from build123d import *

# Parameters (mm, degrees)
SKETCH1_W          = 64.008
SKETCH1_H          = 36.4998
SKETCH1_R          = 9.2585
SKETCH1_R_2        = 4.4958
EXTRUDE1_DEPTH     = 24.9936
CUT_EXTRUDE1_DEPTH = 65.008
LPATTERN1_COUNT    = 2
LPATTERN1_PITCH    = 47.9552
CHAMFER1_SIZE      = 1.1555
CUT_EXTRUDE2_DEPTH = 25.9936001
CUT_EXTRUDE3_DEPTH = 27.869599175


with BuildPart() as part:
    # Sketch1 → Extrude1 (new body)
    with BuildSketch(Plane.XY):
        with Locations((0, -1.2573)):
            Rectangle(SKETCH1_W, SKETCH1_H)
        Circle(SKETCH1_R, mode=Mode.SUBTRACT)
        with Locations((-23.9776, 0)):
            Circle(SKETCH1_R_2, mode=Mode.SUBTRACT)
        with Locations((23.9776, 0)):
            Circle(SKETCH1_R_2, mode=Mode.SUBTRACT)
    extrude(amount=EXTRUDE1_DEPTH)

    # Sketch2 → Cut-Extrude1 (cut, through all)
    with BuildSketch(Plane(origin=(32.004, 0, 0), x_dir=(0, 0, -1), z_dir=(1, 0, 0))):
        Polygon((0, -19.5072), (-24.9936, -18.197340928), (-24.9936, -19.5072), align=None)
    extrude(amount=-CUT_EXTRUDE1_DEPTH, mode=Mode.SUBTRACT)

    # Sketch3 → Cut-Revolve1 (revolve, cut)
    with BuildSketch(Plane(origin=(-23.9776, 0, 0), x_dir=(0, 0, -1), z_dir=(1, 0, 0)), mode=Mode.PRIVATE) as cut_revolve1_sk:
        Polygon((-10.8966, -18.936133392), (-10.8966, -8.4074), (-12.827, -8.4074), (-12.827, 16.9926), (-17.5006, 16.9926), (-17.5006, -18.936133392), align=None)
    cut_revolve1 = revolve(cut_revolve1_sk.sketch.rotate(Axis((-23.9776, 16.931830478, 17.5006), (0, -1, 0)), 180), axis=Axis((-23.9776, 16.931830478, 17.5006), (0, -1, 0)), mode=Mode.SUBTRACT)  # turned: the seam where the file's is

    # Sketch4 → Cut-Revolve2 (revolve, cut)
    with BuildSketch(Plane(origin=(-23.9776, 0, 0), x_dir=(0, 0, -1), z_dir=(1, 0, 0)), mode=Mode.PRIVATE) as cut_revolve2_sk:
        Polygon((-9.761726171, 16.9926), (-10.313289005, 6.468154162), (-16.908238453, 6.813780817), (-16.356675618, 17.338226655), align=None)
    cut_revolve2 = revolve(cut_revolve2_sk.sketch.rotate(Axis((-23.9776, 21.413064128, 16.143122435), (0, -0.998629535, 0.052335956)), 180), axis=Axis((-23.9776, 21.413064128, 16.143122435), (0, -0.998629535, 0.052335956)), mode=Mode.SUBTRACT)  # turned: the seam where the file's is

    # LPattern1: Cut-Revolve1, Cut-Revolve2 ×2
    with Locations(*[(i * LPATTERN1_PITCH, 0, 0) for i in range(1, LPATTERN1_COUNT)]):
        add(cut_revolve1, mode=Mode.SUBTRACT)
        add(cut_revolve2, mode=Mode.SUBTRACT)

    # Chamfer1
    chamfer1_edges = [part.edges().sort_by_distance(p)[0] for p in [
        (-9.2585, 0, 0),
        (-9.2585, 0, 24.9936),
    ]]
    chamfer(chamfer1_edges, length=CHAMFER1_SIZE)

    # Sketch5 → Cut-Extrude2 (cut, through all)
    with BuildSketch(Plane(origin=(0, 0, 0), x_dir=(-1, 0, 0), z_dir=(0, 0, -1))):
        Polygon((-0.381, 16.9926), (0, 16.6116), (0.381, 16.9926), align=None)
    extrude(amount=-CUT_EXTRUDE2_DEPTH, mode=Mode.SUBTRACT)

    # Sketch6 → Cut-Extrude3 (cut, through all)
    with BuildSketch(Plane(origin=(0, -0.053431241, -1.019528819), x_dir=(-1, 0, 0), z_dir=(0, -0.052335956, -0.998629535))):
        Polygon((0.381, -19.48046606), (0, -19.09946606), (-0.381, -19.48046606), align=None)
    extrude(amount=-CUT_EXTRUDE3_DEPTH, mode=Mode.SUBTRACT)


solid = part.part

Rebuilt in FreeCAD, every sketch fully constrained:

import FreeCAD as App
import Part
import Sketcher

V = App.Vector
Q = App.Units.Quantity


def edges_at(feature, points):
    """Names of the edges that pass closest to the given points."""
    edges = feature.Shape.Edges
    near = lambda p: min(range(len(edges)), key=lambda i: edges[i].distToShape(Part.Vertex(*p))[0])
    return sorted({f"Edge{near(p) + 1}" for p in points})


def add_polygon(sketch, points):
    """Adds a closed chain of lines whose ends are joined by coincident constraints."""
    first, n = sketch.GeometryCount, len(points)
    for a, b in zip(points, points[1:] + points[:1]):
        sketch.addGeometry(Part.LineSegment(App.Vector(*a, 0), App.Vector(*b, 0)), False)
    for i in range(n):
        sketch.addConstraint(Sketcher.Constraint("Coincident", first + i, 2, first + (i + 1) % n, 1))

doc = App.newDocument("Part")
body = doc.addObject("PartDesign::Body", "Body")

sketch1 = body.newObject("Sketcher::SketchObject", "Sketch")
sketch1.AttachmentSupport = (doc.getObject("XY_Plane"), [""])
sketch1.MapMode = "FlatFace"
add_polygon(sketch1, [(-32, 17), (-32, -19.5), (32, -19.5), (32, 17)])
sketch1.addGeometry(Part.Circle(V(-24, 0, 0), V(0, 0, 1), 4.5), False)
sketch1.addGeometry(Part.Circle(V(24, 0, 0), V(0, 0, 1), 4.5), False)
sketch1.addGeometry(Part.Circle(V(0, 0, 0), V(0, 0, 1), 9.3), False)
sketch1.addConstraint([
    Sketcher.Constraint("Vertical", 0),
    Sketcher.Constraint("Horizontal", 1),
    Sketcher.Constraint("Vertical", 2),
    Sketcher.Constraint("Horizontal", 3),
    Sketcher.Constraint("Coincident", 6, 3, -1, 1),
    Sketcher.Constraint("Equal", 4, 5),
    Sketcher.Constraint("Symmetric", 4, 3, 5, 3, -1, 1),
    Sketcher.Constraint("PointOnObject", 4, 3, -1),
    Sketcher.Constraint("Diameter", 4, Q("0.354 in")),
    Sketcher.Constraint("DistanceX", 1, 1, 1, 2, Q("2.52 in")),
    Sketcher.Constraint("Diameter", 6, 18.517),
    Sketcher.Constraint("DistanceY", 0, 2, 0, 1, Q("1.437 in")),
    Sketcher.Constraint("DistanceX", 0, 2, -1, 1, Q("1.26 in")),
    Sketcher.Constraint("DistanceX", 4, 3, -1, 1, Q("0.944 in")),
    Sketcher.Constraint("DistanceY", 0, 2, -1, 1, Q("0.768 in")),
])
pad1 = body.newObject("PartDesign::Pad", "Pad")
pad1.Profile = sketch1
pad1.Length = Q("0.984 in")

sketch2 = body.newObject("Sketcher::SketchObject", "Sketch001")
sketch2.AttachmentSupport = (doc.getObject("YZ_Plane"), [""])
sketch2.MapMode = "FlatFace"
sketch2.AttachmentOffset = App.Placement(V(0, 0, 1.26 * 25.4), App.Rotation())
add_polygon(sketch2, [(-19.5, 0), (-18.2, 25), (-19.5, 25)])
sketch2.addConstraint([
    Sketcher.Constraint("Horizontal", 1),
    Sketcher.Constraint("Vertical", 2),
    Sketcher.Constraint("PointOnObject", 2, 2, -1),
    Sketcher.Constraint("Angle", 0, Q("87 deg")),
    Sketcher.Constraint("DistanceY", 2, 2, 2, 1, Q("0.984 in")),
    Sketcher.Constraint("DistanceX", 1, 2, -1, 1, Q("0.768 in")),
])
pocket1 = body.newObject("PartDesign::Pocket", "Pocket")
pocket1.Profile = sketch2
pocket1.Type = "ThroughAll"

sketch3 = body.newObject("Sketcher::SketchObject", "Sketch002")
sketch3.AttachmentSupport = (doc.getObject("YZ_Plane"), [""])
sketch3.MapMode = "FlatFace"
sketch3.AttachmentOffset = App.Placement(V(0, 0, -0.944 * 25.4), App.Rotation())
add_polygon(sketch3, [(-18.9, 10.9), (-8.4, 10.9), (-8.4, 12.8), (17, 12.8), (17, 17.5), (-18.9, 17.5)])
sketch3.addGeometry(Part.LineSegment(V(17, 17.5, 0), V(-18.9, 17.5, 0)), True)
sketch3.addConstraint([
    Sketcher.Constraint("Horizontal", 0),
    Sketcher.Constraint("Vertical", 1),
    Sketcher.Constraint("Horizontal", 2),
    Sketcher.Constraint("Vertical", 3),
    Sketcher.Constraint("Horizontal", 4),
    Sketcher.Constraint("Vertical", 5),
    Sketcher.Constraint("Horizontal", 6),
    Sketcher.Constraint("Coincident", 6, 1, 3, 2),
    Sketcher.Constraint("Vertical", 5, 2, 6, 2),
    Sketcher.Constraint("DistanceX", 2, 1, 2, 2, Q("1 in")),
    Sketcher.Constraint("DistanceY", 5, 2, 5, 1, Q("0.26 in")),
    Sketcher.Constraint("DistanceY", 1, 1, 1, 2, Q("0.076 in")),
    Sketcher.Constraint("DistanceX", 0, 2, -1, 1, Q("0.331 in")),
    Sketcher.Constraint("DistanceY", -1, 1, 0, 2, Q("0.429 in")),
    Sketcher.Constraint("DistanceX", 0, 1, 0, 2, 10.528733),
])
groove = body.newObject("PartDesign::Groove", "Groove")
groove.Profile = sketch3
groove.ReferenceAxis = (sketch3, ["Axis0"])
groove.Angle = 360

sketch4 = body.newObject("Sketcher::SketchObject", "Sketch003")
sketch4.AttachmentSupport = (doc.getObject("YZ_Plane"), [""])
sketch4.MapMode = "FlatFace"
sketch4.AttachmentOffset = App.Placement(V(0, 0, -0.944 * 25.4), App.Rotation())
add_polygon(sketch4, [(6, 10), (17, 10), (17, 16), (7, 17)])
sketch4.addGeometry(Part.LineSegment(V(17, 16, 0), V(7, 17, 0)), True)
sketch4.addConstraint([
    Sketcher.Constraint("Coincident", 4, 1, 1, 2),
    Sketcher.Constraint("Coincident", 4, 2, 2, 2),
    Sketcher.Constraint("Perpendicular", 0, 1),
    Sketcher.Constraint("Perpendicular", 1, 2),
    Sketcher.Constraint("Perpendicular", 2, 3),
    Sketcher.Constraint("Angle", 0, Q("-3 deg")),
    Sketcher.Constraint("Distance", 1, Q("0.26 in")),
    Sketcher.Constraint("DistanceX", -1, 1, 0, 2, Q("0.669 in")),
    Sketcher.Constraint("Distance", 0, 10.538889),
    Sketcher.Constraint("DistanceY", -1, 1, 2, 2, 16.908238),
])
groove2 = body.newObject("PartDesign::Groove", "Groove001")
groove2.Profile = sketch4
groove2.ReferenceAxis = (sketch4, ["Axis0"])
groove2.Angle = 360
doc.recompute()

linearpattern = body.newObject("PartDesign::LinearPattern", "LinearPattern")
linearpattern.Originals = [groove, groove2]
linearpattern.Direction = (doc.getObject("X_Axis"), [""])
linearpattern.Mode = "offset"
linearpattern.Offset = Q("1.888 in")
linearpattern.Occurrences = 2
body.Tip = linearpattern
doc.recompute()

chamfer = body.newObject("PartDesign::Chamfer", "Chamfer")
chamfer.Base = (linearpattern, edges_at(linearpattern, [(-9.258, 0, 0), (-9.258, 0, 24.994)]))
chamfer.Size = 1.1555

sketch5 = body.newObject("Sketcher::SketchObject", "Sketch004")
sketch5.AttachmentSupport = (doc.getObject("XY_Plane"), [""])
sketch5.MapMode = "FlatFace"
add_polygon(sketch5, [(0.4, 17), (0, 16.6), (-0.4, 17)])
sketch5.addConstraint([
    Sketcher.Constraint("Horizontal", 2),
    Sketcher.Constraint("PointOnObject", 0, 2, -2),
    Sketcher.Constraint("Perpendicular", 0, 1),
    Sketcher.Constraint("Equal", 0, 1),
    Sketcher.Constraint("DistanceX", 2, 1, 2, 2, Q("0.03 in")),
    Sketcher.Constraint("DistanceY", -1, 1, 0, 2, Q("0.654 in")),
])
pocket2 = body.newObject("PartDesign::Pocket", "Pocket001")
pocket2.Profile = sketch5
pocket2.Type = "ThroughAll"
pocket2.Reversed = True

sketch6 = body.newObject("Sketcher::SketchObject", "Sketch005")
sketch6.Placement = App.Placement(V(0, -0.053431, -1.019529), App.Rotation(V(-1, 0, 0), V(0, 0.998629535, -0.052335956), V(0, -0.052335956, -0.998629535), "ZXY"))
add_polygon(sketch6, [(0.4, -19.5), (0, -19.1), (-0.4, -19.5)])
sketch6.addConstraint([
    Sketcher.Constraint("Horizontal", 2),
    Sketcher.Constraint("PointOnObject", 0, 2, -2),
    Sketcher.Constraint("Perpendicular", 0, 1),
    Sketcher.Constraint("Equal", 0, 1),
    Sketcher.Constraint("DistanceX", 2, 1, 2, 2, Q("0.03 in")),
    Sketcher.Constraint("DistanceY", 0, 2, -1, 1, 19.099466),
])
pocket3 = body.newObject("PartDesign::Pocket", "Pocket002")
pocket3.Profile = sketch6
pocket3.Type = "ThroughAll"

doc.recompute()
